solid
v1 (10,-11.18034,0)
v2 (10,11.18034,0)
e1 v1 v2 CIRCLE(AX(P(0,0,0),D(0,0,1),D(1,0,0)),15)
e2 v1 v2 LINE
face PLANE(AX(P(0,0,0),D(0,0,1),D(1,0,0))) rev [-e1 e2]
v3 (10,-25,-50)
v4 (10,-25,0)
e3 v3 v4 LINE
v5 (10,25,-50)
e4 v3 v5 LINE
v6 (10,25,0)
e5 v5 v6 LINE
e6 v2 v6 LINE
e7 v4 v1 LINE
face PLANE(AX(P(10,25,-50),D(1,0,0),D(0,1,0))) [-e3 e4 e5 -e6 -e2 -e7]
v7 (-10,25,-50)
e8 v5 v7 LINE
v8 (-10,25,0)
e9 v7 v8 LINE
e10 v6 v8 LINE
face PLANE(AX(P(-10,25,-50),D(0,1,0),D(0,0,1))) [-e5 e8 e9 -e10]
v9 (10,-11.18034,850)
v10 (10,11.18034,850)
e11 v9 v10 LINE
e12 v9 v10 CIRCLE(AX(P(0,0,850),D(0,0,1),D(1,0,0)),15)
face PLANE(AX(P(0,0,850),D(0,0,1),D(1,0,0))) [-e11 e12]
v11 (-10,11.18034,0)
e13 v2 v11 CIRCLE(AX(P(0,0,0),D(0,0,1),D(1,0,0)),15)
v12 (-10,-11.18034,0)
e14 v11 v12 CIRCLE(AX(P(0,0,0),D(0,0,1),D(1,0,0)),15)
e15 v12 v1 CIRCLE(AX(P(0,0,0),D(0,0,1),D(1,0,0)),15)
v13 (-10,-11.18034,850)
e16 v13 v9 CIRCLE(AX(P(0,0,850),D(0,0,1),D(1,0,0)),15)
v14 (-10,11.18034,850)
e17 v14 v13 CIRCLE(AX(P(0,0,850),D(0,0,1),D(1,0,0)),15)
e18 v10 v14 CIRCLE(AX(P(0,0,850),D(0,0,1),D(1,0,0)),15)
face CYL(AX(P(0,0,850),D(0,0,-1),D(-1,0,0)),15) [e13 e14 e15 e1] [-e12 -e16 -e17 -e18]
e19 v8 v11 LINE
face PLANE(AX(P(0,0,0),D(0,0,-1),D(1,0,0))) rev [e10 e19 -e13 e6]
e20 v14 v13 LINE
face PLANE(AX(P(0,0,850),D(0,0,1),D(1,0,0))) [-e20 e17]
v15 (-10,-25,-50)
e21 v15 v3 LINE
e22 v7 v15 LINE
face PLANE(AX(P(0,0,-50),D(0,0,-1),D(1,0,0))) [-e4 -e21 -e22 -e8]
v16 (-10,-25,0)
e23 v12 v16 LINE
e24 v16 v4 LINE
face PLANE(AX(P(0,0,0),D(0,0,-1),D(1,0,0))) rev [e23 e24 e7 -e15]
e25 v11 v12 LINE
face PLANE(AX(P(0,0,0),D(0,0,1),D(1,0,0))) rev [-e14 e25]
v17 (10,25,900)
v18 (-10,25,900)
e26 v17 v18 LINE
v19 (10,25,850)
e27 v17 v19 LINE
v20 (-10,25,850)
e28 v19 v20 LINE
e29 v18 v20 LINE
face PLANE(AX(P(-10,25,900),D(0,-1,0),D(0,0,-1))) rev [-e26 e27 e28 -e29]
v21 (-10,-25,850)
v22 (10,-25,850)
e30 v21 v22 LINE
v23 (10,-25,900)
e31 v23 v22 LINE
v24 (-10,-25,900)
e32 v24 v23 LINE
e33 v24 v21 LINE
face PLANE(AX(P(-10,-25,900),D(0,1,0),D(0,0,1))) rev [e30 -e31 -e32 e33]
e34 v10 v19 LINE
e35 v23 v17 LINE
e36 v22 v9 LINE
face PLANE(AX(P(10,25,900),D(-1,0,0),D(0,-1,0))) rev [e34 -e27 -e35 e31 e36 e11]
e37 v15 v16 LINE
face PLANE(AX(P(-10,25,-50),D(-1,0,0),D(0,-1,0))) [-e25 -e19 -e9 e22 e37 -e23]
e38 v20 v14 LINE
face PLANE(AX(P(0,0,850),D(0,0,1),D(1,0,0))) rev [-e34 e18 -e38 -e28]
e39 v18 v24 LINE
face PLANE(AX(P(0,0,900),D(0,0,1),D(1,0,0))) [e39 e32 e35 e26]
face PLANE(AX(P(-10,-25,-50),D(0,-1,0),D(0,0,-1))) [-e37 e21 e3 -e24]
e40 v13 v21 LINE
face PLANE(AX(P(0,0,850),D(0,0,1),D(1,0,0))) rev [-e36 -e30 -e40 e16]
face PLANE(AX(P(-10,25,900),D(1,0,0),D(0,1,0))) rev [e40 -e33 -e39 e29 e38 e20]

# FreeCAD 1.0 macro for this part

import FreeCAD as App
import Part
import Sketcher

V = App.Vector

doc = App.newDocument("Part")
body = doc.addObject("PartDesign::Body", "Body")

sketch1 = doc.addObject("Sketcher::SketchObject", "Sketch")
body.addObject(sketch1)
sketch1.AttachmentSupport = (doc.XY_Plane, [""])
sketch1.MapMode = "FlatFace"
sketch1.addGeometry(Part.Circle(V(0, 0, 0), V(0, 0, 1), 15), False)
sketch1.addConstraint([
    Sketcher.Constraint("Coincident", 0, 3, -1, 1),
    Sketcher.Constraint("Diameter", 0, 30.0),
])
pad1 = doc.addObject("PartDesign::Pad", "Pad")
body.addObject(pad1)
pad1.Profile = sketch1
pad1.Length = 850

sketch2 = doc.addObject("Sketcher::SketchObject", "Sketch001")
body.addObject(sketch2)
sketch2.AttachmentSupport = (doc.XY_Plane, [""])
sketch2.MapMode = "FlatFace"
sketch2.AttachmentOffset = App.Placement(V(0, 0, 850), App.Rotation())
sketch2.addGeometry([
    Part.LineSegment(V(-10, 25, 0), V(-10, -25, 0)),
    Part.LineSegment(V(-10, -25, 0), V(10, -25, 0)),
    Part.LineSegment(V(10, -25, 0), V(10, 25, 0)),
    Part.LineSegment(V(10, 25, 0), V(-10, 25, 0)),
], False)
sketch2.addConstraint([
    Sketcher.Constraint("Coincident", 0, 2, 1, 1),
    Sketcher.Constraint("Coincident", 1, 2, 2, 1),
    Sketcher.Constraint("Coincident", 2, 2, 3, 1),
    Sketcher.Constraint("Coincident", 3, 2, 0, 1),
    Sketcher.Constraint("Vertical", 0),
    Sketcher.Constraint("Horizontal", 1),
    Sketcher.Constraint("Vertical", 2),
    Sketcher.Constraint("Horizontal", 3),
    Sketcher.Constraint("Symmetric", 0, 2, 2, 2, -1, 1),
    Sketcher.Constraint("DistanceX", 1, 1, 1, 2, 20.0),
    Sketcher.Constraint("DistanceY", 0, 2, 0, 1, 50.0),
])
pad2 = doc.addObject("PartDesign::Pad", "Pad001")
body.addObject(pad2)
pad2.Profile = sketch2
pad2.Length = 50
doc.recompute()

datumplane = doc.addObject("PartDesign::Plane", "DatumPlane")
body.addObject(datumplane)
datumplane.AttachmentSupport = (doc.XY_Plane, [""])
datumplane.MapMode = "FlatFace"
datumplane.AttachmentOffset = App.Placement(V(0, 0, 425), App.Rotation())
mirrored = doc.addObject("PartDesign::Mirrored", "Mirrored")
body.addObject(mirrored)
mirrored.Originals = [pad2]
mirrored.MirrorPlane = (datumplane, [""])
body.Tip = mirrored

doc.recompute()
